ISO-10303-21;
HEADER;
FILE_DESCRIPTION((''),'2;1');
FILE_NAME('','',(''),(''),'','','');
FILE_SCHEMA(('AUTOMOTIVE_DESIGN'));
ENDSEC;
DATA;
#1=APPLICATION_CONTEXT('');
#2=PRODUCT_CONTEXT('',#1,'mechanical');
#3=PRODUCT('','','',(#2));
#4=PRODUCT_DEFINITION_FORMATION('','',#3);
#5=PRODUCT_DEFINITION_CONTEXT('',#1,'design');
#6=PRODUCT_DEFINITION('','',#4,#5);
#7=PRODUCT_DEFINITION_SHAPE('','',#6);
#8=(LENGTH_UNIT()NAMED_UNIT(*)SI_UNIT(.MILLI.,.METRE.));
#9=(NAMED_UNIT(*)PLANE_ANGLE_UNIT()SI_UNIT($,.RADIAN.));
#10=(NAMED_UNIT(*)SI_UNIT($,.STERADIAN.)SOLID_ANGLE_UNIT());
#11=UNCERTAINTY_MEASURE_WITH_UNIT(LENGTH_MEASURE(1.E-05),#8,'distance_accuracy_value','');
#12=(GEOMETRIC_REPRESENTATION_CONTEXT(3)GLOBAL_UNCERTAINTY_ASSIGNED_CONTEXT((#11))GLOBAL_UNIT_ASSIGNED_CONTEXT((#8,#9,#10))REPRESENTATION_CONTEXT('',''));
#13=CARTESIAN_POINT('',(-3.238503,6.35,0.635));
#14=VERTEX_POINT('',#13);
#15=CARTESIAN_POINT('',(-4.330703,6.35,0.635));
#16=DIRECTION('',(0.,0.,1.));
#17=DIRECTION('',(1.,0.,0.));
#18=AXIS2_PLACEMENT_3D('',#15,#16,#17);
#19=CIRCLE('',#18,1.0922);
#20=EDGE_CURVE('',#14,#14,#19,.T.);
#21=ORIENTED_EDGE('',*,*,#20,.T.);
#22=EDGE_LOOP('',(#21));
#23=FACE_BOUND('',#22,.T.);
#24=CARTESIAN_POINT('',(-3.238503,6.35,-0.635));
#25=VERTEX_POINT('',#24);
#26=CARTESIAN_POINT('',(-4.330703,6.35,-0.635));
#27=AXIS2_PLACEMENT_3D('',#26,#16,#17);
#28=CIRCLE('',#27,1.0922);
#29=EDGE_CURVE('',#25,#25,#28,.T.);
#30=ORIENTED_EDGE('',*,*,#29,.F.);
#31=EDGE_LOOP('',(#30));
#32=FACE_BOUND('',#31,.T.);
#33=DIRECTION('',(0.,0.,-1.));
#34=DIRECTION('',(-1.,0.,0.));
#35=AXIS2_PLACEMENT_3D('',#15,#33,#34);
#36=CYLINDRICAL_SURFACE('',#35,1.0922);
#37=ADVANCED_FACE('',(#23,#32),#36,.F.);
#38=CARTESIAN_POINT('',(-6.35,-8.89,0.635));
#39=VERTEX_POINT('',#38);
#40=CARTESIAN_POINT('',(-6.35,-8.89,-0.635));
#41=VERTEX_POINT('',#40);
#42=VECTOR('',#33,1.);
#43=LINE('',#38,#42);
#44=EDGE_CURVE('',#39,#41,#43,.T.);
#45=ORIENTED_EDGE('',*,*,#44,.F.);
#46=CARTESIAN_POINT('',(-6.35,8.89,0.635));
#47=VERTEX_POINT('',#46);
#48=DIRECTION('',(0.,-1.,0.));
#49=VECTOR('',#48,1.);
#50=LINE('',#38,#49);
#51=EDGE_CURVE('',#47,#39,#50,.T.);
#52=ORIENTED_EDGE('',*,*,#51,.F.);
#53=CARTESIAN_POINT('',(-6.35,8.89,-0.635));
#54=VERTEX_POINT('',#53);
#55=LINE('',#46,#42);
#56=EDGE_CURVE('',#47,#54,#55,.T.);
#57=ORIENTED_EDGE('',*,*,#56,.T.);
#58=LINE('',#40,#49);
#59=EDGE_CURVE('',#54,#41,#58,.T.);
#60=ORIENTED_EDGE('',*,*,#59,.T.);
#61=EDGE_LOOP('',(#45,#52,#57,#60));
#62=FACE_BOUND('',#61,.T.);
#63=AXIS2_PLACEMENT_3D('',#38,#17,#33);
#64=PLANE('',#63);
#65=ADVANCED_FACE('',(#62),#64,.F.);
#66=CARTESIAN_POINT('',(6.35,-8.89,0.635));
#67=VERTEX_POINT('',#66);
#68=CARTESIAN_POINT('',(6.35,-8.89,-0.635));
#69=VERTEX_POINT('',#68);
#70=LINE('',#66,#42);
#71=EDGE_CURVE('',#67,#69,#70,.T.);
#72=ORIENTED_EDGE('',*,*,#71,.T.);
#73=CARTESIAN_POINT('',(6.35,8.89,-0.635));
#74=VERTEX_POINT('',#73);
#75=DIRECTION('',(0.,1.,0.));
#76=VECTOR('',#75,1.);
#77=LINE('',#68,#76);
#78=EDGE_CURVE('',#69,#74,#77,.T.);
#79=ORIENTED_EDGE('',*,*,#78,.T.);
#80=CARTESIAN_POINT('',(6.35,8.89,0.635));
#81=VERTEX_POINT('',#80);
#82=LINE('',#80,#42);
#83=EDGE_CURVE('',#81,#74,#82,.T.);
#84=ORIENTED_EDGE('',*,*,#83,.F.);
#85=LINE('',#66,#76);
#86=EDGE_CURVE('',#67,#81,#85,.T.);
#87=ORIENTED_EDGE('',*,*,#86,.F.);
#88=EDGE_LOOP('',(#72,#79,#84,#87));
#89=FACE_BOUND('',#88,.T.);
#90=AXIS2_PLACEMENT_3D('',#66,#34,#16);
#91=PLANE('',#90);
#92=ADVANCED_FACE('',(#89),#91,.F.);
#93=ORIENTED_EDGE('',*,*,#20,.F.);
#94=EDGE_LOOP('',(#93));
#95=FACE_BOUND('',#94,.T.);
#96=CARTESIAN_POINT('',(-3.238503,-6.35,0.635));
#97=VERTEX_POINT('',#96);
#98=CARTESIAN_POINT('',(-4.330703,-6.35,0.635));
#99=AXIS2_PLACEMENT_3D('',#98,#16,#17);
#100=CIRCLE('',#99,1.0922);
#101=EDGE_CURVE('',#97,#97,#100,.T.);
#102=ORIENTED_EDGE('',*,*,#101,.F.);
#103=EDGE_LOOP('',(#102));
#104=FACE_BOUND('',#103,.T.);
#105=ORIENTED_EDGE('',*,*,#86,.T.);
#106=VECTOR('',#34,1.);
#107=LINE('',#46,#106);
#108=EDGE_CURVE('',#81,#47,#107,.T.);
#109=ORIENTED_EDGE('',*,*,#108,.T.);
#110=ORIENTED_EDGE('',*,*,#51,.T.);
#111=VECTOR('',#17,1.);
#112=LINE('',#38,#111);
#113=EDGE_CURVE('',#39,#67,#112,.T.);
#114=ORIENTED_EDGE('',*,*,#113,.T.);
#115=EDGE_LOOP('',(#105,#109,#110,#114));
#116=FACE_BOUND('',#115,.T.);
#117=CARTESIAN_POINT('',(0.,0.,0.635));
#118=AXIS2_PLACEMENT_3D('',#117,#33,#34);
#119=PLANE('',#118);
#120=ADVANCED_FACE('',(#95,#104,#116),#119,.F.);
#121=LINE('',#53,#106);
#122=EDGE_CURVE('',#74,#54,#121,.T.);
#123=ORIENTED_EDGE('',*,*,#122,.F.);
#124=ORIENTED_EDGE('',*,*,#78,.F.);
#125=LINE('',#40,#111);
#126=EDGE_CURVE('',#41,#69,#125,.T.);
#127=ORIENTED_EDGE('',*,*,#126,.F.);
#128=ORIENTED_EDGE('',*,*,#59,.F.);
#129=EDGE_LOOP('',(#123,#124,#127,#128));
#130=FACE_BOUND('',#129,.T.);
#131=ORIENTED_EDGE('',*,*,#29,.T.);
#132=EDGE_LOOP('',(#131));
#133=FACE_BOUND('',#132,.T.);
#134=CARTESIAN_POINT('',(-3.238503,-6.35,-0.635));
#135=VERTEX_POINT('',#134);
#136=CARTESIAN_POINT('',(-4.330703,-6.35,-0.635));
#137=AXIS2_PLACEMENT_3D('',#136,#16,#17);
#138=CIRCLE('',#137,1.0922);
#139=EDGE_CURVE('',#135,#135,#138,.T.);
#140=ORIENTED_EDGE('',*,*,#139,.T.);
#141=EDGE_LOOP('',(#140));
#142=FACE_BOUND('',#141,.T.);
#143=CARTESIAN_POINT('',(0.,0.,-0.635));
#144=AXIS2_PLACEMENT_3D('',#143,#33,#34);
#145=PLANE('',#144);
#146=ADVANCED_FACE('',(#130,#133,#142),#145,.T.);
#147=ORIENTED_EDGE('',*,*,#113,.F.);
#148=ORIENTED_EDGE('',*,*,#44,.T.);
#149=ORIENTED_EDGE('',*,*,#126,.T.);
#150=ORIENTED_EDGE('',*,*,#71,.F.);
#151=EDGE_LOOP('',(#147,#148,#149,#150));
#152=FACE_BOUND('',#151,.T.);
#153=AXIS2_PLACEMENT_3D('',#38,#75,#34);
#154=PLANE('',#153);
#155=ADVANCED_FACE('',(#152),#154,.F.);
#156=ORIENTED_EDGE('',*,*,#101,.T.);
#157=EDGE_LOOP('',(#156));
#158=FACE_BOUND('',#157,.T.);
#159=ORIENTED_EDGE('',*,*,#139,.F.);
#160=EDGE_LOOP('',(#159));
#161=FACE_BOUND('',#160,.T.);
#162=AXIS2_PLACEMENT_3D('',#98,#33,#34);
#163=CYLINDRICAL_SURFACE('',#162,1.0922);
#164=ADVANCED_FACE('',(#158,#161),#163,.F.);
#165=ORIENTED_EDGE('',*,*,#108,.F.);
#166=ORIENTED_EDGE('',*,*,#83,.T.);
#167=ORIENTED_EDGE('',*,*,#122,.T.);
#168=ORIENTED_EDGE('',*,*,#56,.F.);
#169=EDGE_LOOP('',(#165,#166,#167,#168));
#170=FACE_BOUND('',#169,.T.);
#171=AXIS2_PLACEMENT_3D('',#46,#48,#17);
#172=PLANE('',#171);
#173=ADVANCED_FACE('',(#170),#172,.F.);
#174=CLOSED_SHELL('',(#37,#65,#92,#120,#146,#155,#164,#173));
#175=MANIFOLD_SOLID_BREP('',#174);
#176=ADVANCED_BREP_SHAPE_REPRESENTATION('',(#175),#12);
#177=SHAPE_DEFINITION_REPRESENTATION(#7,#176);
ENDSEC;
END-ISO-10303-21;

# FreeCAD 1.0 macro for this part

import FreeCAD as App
import Part
import Sketcher
from FreeCAD import Vector
Q = App.Units.Quantity


def add_polygon(sketch, points):
    """Adds a closed chain of lines whose ends are joined by coincident constraints."""
    first, n = sketch.GeometryCount, len(points)
    for a, b in zip(points, points[1:] + points[:1]):
        sketch.addGeometry(Part.LineSegment(App.Vector(*a, 0), App.Vector(*b, 0)), False)
    for i in range(n):
        sketch.addConstraint(Sketcher.Constraint("Coincident", first + i, 2, first + (i + 1) % n, 1))

doc = App.newDocument("Part")
body = doc.addObject("PartDesign::Body", "Body")

sketch1 = body.newObject("Sketcher::SketchObject", "Sketch")
sketch1.AttachmentSupport = (doc.getObject("XY_Plane"), [""])
sketch1.MapMode = "FlatFace"
add_polygon(sketch1, [(-6.35, 8.89), (-6.35, -8.89), (6.35, -8.89), (6.35, 8.89)])
sketch1.addGeometry(Part.Circle(Vector(-4.330703, -6.35, 0), Vector(0, 0, 1), 1.0922), False)
sketch1.addGeometry(Part.Circle(Vector(-4.330703, 6.35, 0), Vector(0, 0, 1), 1.0922), False)
sketch1.addConstraint([
    Sketcher.Constraint("Vertical", 0),
    Sketcher.Constraint("Horizontal", 1),
    Sketcher.Constraint("Vertical", 2),
    Sketcher.Constraint("Horizontal", 3),
    Sketcher.Constraint("Equal", 4, 5),
    Sketcher.Constraint("Symmetric", 0, 2, 2, 2, -1, 1),
    Sketcher.Constraint("Symmetric", 4, 3, 5, 3, -1),
    Sketcher.Constraint("Diameter", 4, Q("0.086 in")),
    Sketcher.Constraint("DistanceX", 1, 1, 1, 2, Q("0.5 in")),
    Sketcher.Constraint("DistanceY", 0, 2, 0, 1, Q("0.7 in")),
    Sketcher.Constraint("DistanceY", 4, 3, 5, 3, Q("0.5 in")),
    Sketcher.Constraint("DistanceX", 4, 3, -1, 1, Q("0.1705001 in")),
])
pad1 = body.newObject("PartDesign::Pad", "Pad")
pad1.Profile = sketch1
pad1.Length = Q("0.05 in")
pad1.Midplane = True

doc.recompute()
